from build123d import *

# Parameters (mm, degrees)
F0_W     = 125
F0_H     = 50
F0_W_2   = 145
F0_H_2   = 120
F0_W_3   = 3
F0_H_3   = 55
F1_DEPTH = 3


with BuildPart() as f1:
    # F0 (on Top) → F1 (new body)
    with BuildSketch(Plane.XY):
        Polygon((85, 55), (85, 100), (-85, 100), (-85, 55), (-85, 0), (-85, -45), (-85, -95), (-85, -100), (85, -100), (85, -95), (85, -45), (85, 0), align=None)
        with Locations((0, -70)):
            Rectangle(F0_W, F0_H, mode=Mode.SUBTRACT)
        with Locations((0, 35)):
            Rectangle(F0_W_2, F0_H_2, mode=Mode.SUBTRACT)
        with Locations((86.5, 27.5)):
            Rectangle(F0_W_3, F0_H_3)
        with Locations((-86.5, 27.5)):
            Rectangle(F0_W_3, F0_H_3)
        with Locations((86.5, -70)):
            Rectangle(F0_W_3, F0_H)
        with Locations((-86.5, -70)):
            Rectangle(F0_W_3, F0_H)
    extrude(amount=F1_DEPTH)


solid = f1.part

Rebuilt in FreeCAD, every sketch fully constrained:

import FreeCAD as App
import Part
import Sketcher
from FreeCAD import Vector
Q = App.Units.Quantity

doc = App.newDocument("Part")
body = doc.addObject("PartDesign::Body", "Body")

sketch1 = body.newObject("Sketcher::SketchObject", "Sketch")
sketch1.AttachmentSupport = (doc.getObject("XY_Plane"), [""])
sketch1.MapMode = "FlatFace"
sketch1.addGeometry([
    Part.LineSegment(Vector(85, 100, 0), Vector(-85, 100, 0)),
    Part.LineSegment(Vector(-85, 100, 0), Vector(-85, 55, 0)),
    Part.LineSegment(Vector(-85, 55, 0), Vector(-88, 55, 0)),
    Part.LineSegment(Vector(-88, 55, 0), Vector(-88, 0, 0)),
    Part.LineSegment(Vector(-88, 0, 0), Vector(-85, 0, 0)),
    Part.LineSegment(Vector(-85, 0, 0), Vector(-85, -45, 0)),
    Part.LineSegment(Vector(-85, -45, 0), Vector(-88, -45, 0)),
    Part.LineSegment(Vector(-88, -45, 0), Vector(-88, -95, 0)),
    Part.LineSegment(Vector(-88, -95, 0), Vector(-85, -95, 0)),
    Part.LineSegment(Vector(-85, -95, 0), Vector(-85, -100, 0)),
    Part.LineSegment(Vector(-85, -100, 0), Vector(85, -100, 0)),
    Part.LineSegment(Vector(85, -100, 0), Vector(85, -95, 0)),
    Part.LineSegment(Vector(85, -95, 0), Vector(88, -95, 0)),
    Part.LineSegment(Vector(88, -95, 0), Vector(88, -45, 0)),
    Part.LineSegment(Vector(88, -45, 0), Vector(85, -45, 0)),
    Part.LineSegment(Vector(85, -45, 0), Vector(85, 0, 0)),
    Part.LineSegment(Vector(85, 0, 0), Vector(88, 0, 0)),
    Part.LineSegment(Vector(88, 0, 0), Vector(88, 55, 0)),
    Part.LineSegment(Vector(88, 55, 0), Vector(85, 55, 0)),
    Part.LineSegment(Vector(85, 55, 0), Vector(85, 100, 0)),
    Part.LineSegment(Vector(62.5, -95, 0), Vector(-62.5, -95, 0)),
    Part.LineSegment(Vector(-62.5, -95, 0), Vector(-62.5, -45, 0)),
    Part.LineSegment(Vector(-62.5, -45, 0), Vector(62.5, -45, 0)),
    Part.LineSegment(Vector(62.5, -45, 0), Vector(62.5, -95, 0)),
    Part.LineSegment(Vector(72.5, -25, 0), Vector(-72.5, -25, 0)),
    Part.LineSegment(Vector(-72.5, -25, 0), Vector(-72.5, 95, 0)),
    Part.LineSegment(Vector(-72.5, 95, 0), Vector(72.5, 95, 0)),
    Part.LineSegment(Vector(72.5, 95, 0), Vector(72.5, -25, 0)),
], False)
sketch1.addConstraint([
    Sketcher.Constraint("Coincident", 0, 2, 1, 1),
    Sketcher.Constraint("Coincident", 1, 2, 2, 1),
    Sketcher.Constraint("Coincident", 2, 2, 3, 1),
    Sketcher.Constraint("Coincident", 3, 2, 4, 1),
    Sketcher.Constraint("Coincident", 4, 2, 5, 1),
    Sketcher.Constraint("Coincident", 5, 2, 6, 1),
    Sketcher.Constraint("Coincident", 6, 2, 7, 1),
    Sketcher.Constraint("Coincident", 7, 2, 8, 1),
    Sketcher.Constraint("Coincident", 8, 2, 9, 1),
    Sketcher.Constraint("Coincident", 9, 2, 10, 1),
    Sketcher.Constraint("Coincident", 10, 2, 11, 1),
    Sketcher.Constraint("Coincident", 11, 2, 12, 1),
    Sketcher.Constraint("Coincident", 12, 2, 13, 1),
    Sketcher.Constraint("Coincident", 13, 2, 14, 1),
    Sketcher.Constraint("Coincident", 14, 2, 15, 1),
    Sketcher.Constraint("Coincident", 15, 2, 16, 1),
    Sketcher.Constraint("Coincident", 16, 2, 17, 1),
    Sketcher.Constraint("Coincident", 17, 2, 18, 1),
    Sketcher.Constraint("Coincident", 18, 2, 19, 1),
    Sketcher.Constraint("Coincident", 19, 2, 0, 1),
    Sketcher.Constraint("Coincident", 20, 2, 21, 1),
    Sketcher.Constraint("Coincident", 21, 2, 22, 1),
    Sketcher.Constraint("Coincident", 22, 2, 23, 1),
    Sketcher.Constraint("Coincident", 23, 2, 20, 1),
    Sketcher.Constraint("Coincident", 24, 2, 25, 1),
    Sketcher.Constraint("Coincident", 25, 2, 26, 1),
    Sketcher.Constraint("Coincident", 26, 2, 27, 1),
    Sketcher.Constraint("Coincident", 27, 2, 24, 1),
    Sketcher.Constraint("Horizontal", 0),
    Sketcher.Constraint("Vertical", 1),
    Sketcher.Constraint("Horizontal", 2),
    Sketcher.Constraint("Vertical", 3),
    Sketcher.Constraint("Horizontal", 4),
    Sketcher.Constraint("Vertical", 5),
    Sketcher.Constraint("Horizontal", 6),
    Sketcher.Constraint("Vertical", 7),
    Sketcher.Constraint("Horizontal", 8),
    Sketcher.Constraint("Vertical", 9),
    Sketcher.Constraint("Horizontal", 10),
    Sketcher.Constraint("Vertical", 11),
    Sketcher.Constraint("Horizontal", 12),
    Sketcher.Constraint("Vertical", 13),
    Sketcher.Constraint("Horizontal", 14),
    Sketcher.Constraint("Vertical", 15),
    Sketcher.Constraint("Horizontal", 16),
    Sketcher.Constraint("Vertical", 17),
    Sketcher.Constraint("Horizontal", 18),
    Sketcher.Constraint("Vertical", 19),
    Sketcher.Constraint("Horizontal", 20),
    Sketcher.Constraint("Vertical", 21),
    Sketcher.Constraint("Horizontal", 22),
    Sketcher.Constraint("Vertical", 23),
    Sketcher.Constraint("Horizontal", 24),
    Sketcher.Constraint("Vertical", 25),
    Sketcher.Constraint("Horizontal", 26),
    Sketcher.Constraint("Vertical", 27),
    Sketcher.Constraint("Symmetric", 0, 2, 10, 2, -1, 1),
    Sketcher.Constraint("Symmetric", 4, 2, 15, 2, -1, 1),
    Sketcher.Constraint("Symmetric", 8, 2, 11, 2, -2),
    Sketcher.Constraint("Symmetric", 6, 2, 13, 2, -2),
    Sketcher.Constraint("Symmetric", 3, 2, 16, 2, -2),
    Sketcher.Constraint("Symmetric", 1, 2, 18, 2, -2),
    Sketcher.Constraint("Horizontal", 12, 2, 20, 2),
    Sketcher.Constraint("Horizontal", 14, 2, 21, 2),
    Sketcher.Constraint("Vertical", 1, 2, 4, 2),
    Sketcher.Constraint("Vertical", 3, 2, 6, 2),
    Sketcher.Constraint("Equal", 1, 5),
    Sketcher.Constraint("DistanceX", 0, 2, 0, 1, Q("170 mm")),
    Sketcher.Constraint("DistanceX", 2, 2, 2, 1, Q("3 mm")),
    Sketcher.Constraint("DistanceX", 20, 2, 20, 1, Q("125 mm")),
    Sketcher.Constraint("DistanceX", 24, 2, 24, 1, Q("145 mm")),
    Sketcher.Constraint("DistanceY", 1, 2, 1, 1, Q("45 mm")),
    Sketcher.Constraint("DistanceY", 3, 2, 3, 1, Q("55 mm")),
    Sketcher.Constraint("DistanceY", 7, 2, 7, 1, Q("50 mm")),
    Sketcher.Constraint("DistanceY", 25, 1, 25, 2, Q("120 mm")),
    Sketcher.Constraint("DistanceY", 24, 2, -1, 1, Q("25 mm")),
    Sketcher.Constraint("DistanceX", 24, 2, 21, 2, Q("10 mm")),
    Sketcher.Constraint("DistanceX", 20, 2, -1, 1, Q("62.5 mm")),
])
pad1 = body.newObject("PartDesign::Pad", "Pad")
pad1.Profile = sketch1
pad1.Length = 3

doc.recompute()
